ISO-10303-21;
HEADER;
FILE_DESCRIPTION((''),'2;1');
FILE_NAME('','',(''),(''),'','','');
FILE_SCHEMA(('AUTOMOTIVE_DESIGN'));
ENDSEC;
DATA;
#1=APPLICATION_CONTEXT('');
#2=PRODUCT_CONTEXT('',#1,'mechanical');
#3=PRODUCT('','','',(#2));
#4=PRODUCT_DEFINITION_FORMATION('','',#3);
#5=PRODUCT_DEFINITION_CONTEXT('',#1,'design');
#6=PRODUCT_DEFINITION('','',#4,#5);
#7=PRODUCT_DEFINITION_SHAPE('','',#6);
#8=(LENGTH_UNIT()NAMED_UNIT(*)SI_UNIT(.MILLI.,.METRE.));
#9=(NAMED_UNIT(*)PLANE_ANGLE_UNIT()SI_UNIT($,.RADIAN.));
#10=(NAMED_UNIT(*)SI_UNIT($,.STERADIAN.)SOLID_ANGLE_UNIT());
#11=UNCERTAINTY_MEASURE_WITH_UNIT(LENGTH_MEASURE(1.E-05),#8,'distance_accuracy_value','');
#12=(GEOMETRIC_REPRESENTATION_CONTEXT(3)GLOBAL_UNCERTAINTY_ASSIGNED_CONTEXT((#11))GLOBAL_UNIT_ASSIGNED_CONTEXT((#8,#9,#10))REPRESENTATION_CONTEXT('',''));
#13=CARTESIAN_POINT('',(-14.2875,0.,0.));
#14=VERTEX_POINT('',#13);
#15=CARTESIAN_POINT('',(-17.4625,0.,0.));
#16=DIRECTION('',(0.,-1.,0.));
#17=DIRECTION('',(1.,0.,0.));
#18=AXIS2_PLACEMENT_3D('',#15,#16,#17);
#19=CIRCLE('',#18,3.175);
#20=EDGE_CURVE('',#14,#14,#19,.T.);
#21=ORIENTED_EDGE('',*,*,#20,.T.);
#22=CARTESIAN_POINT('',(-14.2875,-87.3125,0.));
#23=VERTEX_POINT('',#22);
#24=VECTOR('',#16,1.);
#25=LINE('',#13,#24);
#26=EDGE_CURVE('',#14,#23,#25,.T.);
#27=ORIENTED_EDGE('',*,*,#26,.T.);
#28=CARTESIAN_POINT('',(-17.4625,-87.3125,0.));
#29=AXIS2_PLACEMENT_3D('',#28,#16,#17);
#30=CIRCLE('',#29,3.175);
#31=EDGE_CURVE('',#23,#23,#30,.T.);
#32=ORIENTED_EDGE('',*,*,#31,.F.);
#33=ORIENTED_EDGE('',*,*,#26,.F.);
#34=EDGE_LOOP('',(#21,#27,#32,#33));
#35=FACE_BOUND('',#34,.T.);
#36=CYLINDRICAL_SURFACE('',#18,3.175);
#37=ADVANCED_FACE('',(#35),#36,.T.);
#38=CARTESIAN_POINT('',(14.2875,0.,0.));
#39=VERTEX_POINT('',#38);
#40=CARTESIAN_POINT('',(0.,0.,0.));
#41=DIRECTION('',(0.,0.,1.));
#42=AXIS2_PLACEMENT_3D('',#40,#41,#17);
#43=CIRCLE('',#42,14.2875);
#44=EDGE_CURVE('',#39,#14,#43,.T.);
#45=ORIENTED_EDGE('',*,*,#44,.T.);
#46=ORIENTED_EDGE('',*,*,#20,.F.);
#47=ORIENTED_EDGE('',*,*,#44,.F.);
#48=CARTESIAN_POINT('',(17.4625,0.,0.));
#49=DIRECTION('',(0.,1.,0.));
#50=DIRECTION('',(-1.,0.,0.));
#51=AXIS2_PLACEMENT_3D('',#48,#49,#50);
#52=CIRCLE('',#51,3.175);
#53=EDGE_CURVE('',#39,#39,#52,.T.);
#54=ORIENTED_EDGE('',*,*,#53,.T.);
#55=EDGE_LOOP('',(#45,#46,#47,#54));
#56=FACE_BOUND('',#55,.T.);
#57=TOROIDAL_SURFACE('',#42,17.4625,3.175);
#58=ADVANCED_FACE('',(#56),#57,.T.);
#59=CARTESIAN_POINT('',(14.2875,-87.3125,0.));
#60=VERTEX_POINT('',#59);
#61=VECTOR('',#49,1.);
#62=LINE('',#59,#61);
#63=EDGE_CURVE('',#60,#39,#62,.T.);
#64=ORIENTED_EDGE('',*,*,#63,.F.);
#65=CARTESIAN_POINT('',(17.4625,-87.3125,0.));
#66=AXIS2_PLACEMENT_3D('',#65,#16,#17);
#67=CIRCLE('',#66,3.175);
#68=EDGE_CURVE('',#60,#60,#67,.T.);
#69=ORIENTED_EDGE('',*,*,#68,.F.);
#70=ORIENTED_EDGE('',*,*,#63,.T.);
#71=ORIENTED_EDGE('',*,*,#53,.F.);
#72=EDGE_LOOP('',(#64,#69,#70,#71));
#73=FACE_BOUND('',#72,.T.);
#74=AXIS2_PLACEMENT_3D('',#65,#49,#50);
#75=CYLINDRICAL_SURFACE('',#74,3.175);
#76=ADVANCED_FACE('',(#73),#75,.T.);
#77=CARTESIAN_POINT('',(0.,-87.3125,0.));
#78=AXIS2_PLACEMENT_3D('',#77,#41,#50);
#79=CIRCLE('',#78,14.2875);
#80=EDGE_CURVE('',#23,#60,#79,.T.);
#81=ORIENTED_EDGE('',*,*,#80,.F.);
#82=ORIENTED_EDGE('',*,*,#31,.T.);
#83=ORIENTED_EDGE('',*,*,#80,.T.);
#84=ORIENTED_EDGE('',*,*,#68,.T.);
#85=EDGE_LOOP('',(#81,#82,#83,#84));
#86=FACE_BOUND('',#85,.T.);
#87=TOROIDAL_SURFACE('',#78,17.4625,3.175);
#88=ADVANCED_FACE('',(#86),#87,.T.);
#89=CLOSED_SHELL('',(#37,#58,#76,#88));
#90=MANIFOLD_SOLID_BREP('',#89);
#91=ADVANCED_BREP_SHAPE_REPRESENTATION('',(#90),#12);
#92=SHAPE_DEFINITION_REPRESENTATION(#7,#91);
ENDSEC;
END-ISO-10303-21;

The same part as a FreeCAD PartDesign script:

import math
import FreeCAD as App
import Part
import Sketcher
Q = App.Units.Quantity

doc = App.newDocument("Part")
body = doc.addObject("PartDesign::Body", "Body")

sketch1 = body.newObject("Sketcher::SketchObject", "Sketch")
sketch1.AttachmentSupport = (doc.getObject("XZ_Plane"), [""])
sketch1.MapMode = "FlatFace"
sketch1.addGeometry(Part.Circle(App.Vector(-17.5, 0, 0), App.Vector(0, 0, 1), 3.2), False)
sketch1.addConstraint([
    Sketcher.Constraint("PointOnObject", 0, 3, -1),
    Sketcher.Constraint("Diameter", 0, Q("0.25 in")),
    Sketcher.Constraint("DistanceX", 0, 3, -1, 1, Q("0.6875 in")),
])

sketch2 = body.newObject("Sketcher::SketchObject", "Sketch001")
sketch2.AttachmentSupport = (doc.getObject("XY_Plane"), [""])
sketch2.MapMode = "FlatFace"
sketch2.addGeometry([
    Part.LineSegment(App.Vector(-17, 0, 0), App.Vector(-17, -87, 0)),
    Part.ArcOfCircle(Part.Circle(App.Vector(0, -87, 0), App.Vector(0, 0, 1), 17), math.radians(180), math.radians(360)),
    Part.LineSegment(App.Vector(17, -87, 0), App.Vector(17, 0, 0)),
    Part.ArcOfCircle(Part.Circle(App.Vector(0, 0, 0), App.Vector(0, 0, 1), 17), math.radians(0), math.radians(180)),
], False)
sketch2.addConstraint([
    Sketcher.Constraint("Tangent", 0, 2, 1, 1),
    Sketcher.Constraint("Tangent", 1, 2, 2, 1),
    Sketcher.Constraint("Tangent", 2, 2, 3, 1),
    Sketcher.Constraint("Tangent", 3, 2, 0, 1),
    Sketcher.Constraint("Vertical", 0),
    Sketcher.Constraint("Vertical", 2),
    Sketcher.Constraint("Coincident", 3, 3, -1, 1),
    Sketcher.Constraint("Radius", 1, Q("0.6875 in")),
    Sketcher.Constraint("DistanceY", 0, 2, 0, 1, Q("3.4375 in")),
])
doc.recompute()

additivepipe = body.newObject("PartDesign::AdditivePipe", "AdditivePipe")
additivepipe.Profile = sketch1
additivepipe.Spine = (sketch2, ["Edge1", "Edge2", "Edge3", "Edge4"])

doc.recompute()
